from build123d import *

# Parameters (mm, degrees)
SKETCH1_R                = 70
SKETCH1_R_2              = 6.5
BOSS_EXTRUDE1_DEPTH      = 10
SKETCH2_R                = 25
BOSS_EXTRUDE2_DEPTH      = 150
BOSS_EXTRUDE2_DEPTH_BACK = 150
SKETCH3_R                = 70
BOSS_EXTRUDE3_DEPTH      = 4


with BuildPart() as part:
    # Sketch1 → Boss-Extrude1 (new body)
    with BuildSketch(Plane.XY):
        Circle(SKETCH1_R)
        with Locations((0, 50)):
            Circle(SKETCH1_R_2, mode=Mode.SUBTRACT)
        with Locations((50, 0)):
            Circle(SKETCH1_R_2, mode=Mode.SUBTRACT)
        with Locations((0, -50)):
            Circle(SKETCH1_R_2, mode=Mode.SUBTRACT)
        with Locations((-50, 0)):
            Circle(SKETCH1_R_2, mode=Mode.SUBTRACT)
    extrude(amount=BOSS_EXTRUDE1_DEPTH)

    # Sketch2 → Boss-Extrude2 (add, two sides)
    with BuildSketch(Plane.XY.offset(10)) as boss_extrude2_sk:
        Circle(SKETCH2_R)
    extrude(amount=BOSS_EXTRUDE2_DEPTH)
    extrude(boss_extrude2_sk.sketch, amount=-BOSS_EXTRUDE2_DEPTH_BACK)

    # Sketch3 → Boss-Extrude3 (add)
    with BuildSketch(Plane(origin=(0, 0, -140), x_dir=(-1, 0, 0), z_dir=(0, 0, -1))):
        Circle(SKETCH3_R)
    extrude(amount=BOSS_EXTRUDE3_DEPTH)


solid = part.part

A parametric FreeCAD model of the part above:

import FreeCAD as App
import Part
import Sketcher
from FreeCAD import Vector
Q = App.Units.Quantity

doc = App.newDocument("Part")
body = doc.addObject("PartDesign::Body", "Body")

# Sketch on XY plane
sketch1 = body.newObject("Sketcher::SketchObject", "Sketch")
sketch1.AttachmentSupport = (doc.getObject("XY_Plane"), [""])
sketch1.MapMode = "FlatFace"
sketch1.addGeometry(Part.Circle(Vector(0, 0, 0), Vector(0, 0, 1), 70), False)
sketch1.addGeometry(Part.Circle(Vector(0, -50, 0), Vector(0, 0, 1), 6), False)
sketch1.addGeometry(Part.Circle(Vector(-50, 0, 0), Vector(0, 0, 1), 6), False)
sketch1.addGeometry(Part.Circle(Vector(50, 0, 0), Vector(0, 0, 1), 6), False)
sketch1.addGeometry(Part.Circle(Vector(0, 50, 0), Vector(0, 0, 1), 6), False)
sketch1.addConstraint(Sketcher.Constraint("Coincident", 0, 3, -1, 1))
sketch1.addConstraint(Sketcher.Constraint("Equal", 1, 2))
sketch1.addConstraint(Sketcher.Constraint("Equal", 2, 3))
sketch1.addConstraint(Sketcher.Constraint("Equal", 3, 4))
sketch1.addConstraint(Sketcher.Constraint("Symmetric", 2, 3, 3, 3, -1, 1))
sketch1.addConstraint(Sketcher.Constraint("Symmetric", 1, 3, 4, 3, -1, 1))
sketch1.addConstraint(Sketcher.Constraint("PointOnObject", 1, 3, -2))
sketch1.addConstraint(Sketcher.Constraint("PointOnObject", 2, 3, -1))
sketch1.addConstraint(Sketcher.Constraint("Diameter", 0, Q("140 mm")))
sketch1.addConstraint(Sketcher.Constraint("Diameter", 1, Q("13 mm")))
sketch1.addConstraint(Sketcher.Constraint("DistanceY", 1, 3, -1, 1, Q("50 mm")))
sketch1.addConstraint(Sketcher.Constraint("DistanceX", 2, 3, -1, 1, Q("50 mm")))
pad1 = body.newObject("PartDesign::Pad", "Pad")
pad1.Profile = sketch1
pad1.Length = 10

# Sketch on XY plane
sketch2 = body.newObject("Sketcher::SketchObject", "Sketch001")
sketch2.AttachmentSupport = (doc.getObject("XY_Plane"), [""])
sketch2.MapMode = "FlatFace"
sketch2.AttachmentOffset = App.Placement(Vector(0, 0, 10), App.Rotation())
sketch2.addGeometry(Part.Circle(Vector(0, 0, 0), Vector(0, 0, 1), 25), False)
sketch2.addConstraint(Sketcher.Constraint("Coincident", 0, 3, -1, 1))
sketch2.addConstraint(Sketcher.Constraint("Diameter", 0, Q("50 mm")))
pad2 = body.newObject("PartDesign::Pad", "Pad001")
pad2.Profile = sketch2
pad2.Type = "TwoLengths"
pad2.Length = 150
pad2.Length2 = 150

# Sketch on XY plane
sketch3 = body.newObject("Sketcher::SketchObject", "Sketch002")
sketch3.AttachmentSupport = (doc.getObject("XY_Plane"), [""])
sketch3.MapMode = "FlatFace"
sketch3.AttachmentOffset = App.Placement(Vector(0, 0, -140), App.Rotation())
sketch3.addGeometry(Part.Circle(Vector(0, 0, 0), Vector(0, 0, 1), 70), False)
sketch3.addConstraint(Sketcher.Constraint("Coincident", 0, 3, -1, 1))
sketch3.addConstraint(Sketcher.Constraint("Diameter", 0, Q("140 mm")))
pad3 = body.newObject("PartDesign::Pad", "Pad002")
pad3.Profile = sketch3
pad3.Length = 4
pad3.Reversed = True

doc.recompute()
